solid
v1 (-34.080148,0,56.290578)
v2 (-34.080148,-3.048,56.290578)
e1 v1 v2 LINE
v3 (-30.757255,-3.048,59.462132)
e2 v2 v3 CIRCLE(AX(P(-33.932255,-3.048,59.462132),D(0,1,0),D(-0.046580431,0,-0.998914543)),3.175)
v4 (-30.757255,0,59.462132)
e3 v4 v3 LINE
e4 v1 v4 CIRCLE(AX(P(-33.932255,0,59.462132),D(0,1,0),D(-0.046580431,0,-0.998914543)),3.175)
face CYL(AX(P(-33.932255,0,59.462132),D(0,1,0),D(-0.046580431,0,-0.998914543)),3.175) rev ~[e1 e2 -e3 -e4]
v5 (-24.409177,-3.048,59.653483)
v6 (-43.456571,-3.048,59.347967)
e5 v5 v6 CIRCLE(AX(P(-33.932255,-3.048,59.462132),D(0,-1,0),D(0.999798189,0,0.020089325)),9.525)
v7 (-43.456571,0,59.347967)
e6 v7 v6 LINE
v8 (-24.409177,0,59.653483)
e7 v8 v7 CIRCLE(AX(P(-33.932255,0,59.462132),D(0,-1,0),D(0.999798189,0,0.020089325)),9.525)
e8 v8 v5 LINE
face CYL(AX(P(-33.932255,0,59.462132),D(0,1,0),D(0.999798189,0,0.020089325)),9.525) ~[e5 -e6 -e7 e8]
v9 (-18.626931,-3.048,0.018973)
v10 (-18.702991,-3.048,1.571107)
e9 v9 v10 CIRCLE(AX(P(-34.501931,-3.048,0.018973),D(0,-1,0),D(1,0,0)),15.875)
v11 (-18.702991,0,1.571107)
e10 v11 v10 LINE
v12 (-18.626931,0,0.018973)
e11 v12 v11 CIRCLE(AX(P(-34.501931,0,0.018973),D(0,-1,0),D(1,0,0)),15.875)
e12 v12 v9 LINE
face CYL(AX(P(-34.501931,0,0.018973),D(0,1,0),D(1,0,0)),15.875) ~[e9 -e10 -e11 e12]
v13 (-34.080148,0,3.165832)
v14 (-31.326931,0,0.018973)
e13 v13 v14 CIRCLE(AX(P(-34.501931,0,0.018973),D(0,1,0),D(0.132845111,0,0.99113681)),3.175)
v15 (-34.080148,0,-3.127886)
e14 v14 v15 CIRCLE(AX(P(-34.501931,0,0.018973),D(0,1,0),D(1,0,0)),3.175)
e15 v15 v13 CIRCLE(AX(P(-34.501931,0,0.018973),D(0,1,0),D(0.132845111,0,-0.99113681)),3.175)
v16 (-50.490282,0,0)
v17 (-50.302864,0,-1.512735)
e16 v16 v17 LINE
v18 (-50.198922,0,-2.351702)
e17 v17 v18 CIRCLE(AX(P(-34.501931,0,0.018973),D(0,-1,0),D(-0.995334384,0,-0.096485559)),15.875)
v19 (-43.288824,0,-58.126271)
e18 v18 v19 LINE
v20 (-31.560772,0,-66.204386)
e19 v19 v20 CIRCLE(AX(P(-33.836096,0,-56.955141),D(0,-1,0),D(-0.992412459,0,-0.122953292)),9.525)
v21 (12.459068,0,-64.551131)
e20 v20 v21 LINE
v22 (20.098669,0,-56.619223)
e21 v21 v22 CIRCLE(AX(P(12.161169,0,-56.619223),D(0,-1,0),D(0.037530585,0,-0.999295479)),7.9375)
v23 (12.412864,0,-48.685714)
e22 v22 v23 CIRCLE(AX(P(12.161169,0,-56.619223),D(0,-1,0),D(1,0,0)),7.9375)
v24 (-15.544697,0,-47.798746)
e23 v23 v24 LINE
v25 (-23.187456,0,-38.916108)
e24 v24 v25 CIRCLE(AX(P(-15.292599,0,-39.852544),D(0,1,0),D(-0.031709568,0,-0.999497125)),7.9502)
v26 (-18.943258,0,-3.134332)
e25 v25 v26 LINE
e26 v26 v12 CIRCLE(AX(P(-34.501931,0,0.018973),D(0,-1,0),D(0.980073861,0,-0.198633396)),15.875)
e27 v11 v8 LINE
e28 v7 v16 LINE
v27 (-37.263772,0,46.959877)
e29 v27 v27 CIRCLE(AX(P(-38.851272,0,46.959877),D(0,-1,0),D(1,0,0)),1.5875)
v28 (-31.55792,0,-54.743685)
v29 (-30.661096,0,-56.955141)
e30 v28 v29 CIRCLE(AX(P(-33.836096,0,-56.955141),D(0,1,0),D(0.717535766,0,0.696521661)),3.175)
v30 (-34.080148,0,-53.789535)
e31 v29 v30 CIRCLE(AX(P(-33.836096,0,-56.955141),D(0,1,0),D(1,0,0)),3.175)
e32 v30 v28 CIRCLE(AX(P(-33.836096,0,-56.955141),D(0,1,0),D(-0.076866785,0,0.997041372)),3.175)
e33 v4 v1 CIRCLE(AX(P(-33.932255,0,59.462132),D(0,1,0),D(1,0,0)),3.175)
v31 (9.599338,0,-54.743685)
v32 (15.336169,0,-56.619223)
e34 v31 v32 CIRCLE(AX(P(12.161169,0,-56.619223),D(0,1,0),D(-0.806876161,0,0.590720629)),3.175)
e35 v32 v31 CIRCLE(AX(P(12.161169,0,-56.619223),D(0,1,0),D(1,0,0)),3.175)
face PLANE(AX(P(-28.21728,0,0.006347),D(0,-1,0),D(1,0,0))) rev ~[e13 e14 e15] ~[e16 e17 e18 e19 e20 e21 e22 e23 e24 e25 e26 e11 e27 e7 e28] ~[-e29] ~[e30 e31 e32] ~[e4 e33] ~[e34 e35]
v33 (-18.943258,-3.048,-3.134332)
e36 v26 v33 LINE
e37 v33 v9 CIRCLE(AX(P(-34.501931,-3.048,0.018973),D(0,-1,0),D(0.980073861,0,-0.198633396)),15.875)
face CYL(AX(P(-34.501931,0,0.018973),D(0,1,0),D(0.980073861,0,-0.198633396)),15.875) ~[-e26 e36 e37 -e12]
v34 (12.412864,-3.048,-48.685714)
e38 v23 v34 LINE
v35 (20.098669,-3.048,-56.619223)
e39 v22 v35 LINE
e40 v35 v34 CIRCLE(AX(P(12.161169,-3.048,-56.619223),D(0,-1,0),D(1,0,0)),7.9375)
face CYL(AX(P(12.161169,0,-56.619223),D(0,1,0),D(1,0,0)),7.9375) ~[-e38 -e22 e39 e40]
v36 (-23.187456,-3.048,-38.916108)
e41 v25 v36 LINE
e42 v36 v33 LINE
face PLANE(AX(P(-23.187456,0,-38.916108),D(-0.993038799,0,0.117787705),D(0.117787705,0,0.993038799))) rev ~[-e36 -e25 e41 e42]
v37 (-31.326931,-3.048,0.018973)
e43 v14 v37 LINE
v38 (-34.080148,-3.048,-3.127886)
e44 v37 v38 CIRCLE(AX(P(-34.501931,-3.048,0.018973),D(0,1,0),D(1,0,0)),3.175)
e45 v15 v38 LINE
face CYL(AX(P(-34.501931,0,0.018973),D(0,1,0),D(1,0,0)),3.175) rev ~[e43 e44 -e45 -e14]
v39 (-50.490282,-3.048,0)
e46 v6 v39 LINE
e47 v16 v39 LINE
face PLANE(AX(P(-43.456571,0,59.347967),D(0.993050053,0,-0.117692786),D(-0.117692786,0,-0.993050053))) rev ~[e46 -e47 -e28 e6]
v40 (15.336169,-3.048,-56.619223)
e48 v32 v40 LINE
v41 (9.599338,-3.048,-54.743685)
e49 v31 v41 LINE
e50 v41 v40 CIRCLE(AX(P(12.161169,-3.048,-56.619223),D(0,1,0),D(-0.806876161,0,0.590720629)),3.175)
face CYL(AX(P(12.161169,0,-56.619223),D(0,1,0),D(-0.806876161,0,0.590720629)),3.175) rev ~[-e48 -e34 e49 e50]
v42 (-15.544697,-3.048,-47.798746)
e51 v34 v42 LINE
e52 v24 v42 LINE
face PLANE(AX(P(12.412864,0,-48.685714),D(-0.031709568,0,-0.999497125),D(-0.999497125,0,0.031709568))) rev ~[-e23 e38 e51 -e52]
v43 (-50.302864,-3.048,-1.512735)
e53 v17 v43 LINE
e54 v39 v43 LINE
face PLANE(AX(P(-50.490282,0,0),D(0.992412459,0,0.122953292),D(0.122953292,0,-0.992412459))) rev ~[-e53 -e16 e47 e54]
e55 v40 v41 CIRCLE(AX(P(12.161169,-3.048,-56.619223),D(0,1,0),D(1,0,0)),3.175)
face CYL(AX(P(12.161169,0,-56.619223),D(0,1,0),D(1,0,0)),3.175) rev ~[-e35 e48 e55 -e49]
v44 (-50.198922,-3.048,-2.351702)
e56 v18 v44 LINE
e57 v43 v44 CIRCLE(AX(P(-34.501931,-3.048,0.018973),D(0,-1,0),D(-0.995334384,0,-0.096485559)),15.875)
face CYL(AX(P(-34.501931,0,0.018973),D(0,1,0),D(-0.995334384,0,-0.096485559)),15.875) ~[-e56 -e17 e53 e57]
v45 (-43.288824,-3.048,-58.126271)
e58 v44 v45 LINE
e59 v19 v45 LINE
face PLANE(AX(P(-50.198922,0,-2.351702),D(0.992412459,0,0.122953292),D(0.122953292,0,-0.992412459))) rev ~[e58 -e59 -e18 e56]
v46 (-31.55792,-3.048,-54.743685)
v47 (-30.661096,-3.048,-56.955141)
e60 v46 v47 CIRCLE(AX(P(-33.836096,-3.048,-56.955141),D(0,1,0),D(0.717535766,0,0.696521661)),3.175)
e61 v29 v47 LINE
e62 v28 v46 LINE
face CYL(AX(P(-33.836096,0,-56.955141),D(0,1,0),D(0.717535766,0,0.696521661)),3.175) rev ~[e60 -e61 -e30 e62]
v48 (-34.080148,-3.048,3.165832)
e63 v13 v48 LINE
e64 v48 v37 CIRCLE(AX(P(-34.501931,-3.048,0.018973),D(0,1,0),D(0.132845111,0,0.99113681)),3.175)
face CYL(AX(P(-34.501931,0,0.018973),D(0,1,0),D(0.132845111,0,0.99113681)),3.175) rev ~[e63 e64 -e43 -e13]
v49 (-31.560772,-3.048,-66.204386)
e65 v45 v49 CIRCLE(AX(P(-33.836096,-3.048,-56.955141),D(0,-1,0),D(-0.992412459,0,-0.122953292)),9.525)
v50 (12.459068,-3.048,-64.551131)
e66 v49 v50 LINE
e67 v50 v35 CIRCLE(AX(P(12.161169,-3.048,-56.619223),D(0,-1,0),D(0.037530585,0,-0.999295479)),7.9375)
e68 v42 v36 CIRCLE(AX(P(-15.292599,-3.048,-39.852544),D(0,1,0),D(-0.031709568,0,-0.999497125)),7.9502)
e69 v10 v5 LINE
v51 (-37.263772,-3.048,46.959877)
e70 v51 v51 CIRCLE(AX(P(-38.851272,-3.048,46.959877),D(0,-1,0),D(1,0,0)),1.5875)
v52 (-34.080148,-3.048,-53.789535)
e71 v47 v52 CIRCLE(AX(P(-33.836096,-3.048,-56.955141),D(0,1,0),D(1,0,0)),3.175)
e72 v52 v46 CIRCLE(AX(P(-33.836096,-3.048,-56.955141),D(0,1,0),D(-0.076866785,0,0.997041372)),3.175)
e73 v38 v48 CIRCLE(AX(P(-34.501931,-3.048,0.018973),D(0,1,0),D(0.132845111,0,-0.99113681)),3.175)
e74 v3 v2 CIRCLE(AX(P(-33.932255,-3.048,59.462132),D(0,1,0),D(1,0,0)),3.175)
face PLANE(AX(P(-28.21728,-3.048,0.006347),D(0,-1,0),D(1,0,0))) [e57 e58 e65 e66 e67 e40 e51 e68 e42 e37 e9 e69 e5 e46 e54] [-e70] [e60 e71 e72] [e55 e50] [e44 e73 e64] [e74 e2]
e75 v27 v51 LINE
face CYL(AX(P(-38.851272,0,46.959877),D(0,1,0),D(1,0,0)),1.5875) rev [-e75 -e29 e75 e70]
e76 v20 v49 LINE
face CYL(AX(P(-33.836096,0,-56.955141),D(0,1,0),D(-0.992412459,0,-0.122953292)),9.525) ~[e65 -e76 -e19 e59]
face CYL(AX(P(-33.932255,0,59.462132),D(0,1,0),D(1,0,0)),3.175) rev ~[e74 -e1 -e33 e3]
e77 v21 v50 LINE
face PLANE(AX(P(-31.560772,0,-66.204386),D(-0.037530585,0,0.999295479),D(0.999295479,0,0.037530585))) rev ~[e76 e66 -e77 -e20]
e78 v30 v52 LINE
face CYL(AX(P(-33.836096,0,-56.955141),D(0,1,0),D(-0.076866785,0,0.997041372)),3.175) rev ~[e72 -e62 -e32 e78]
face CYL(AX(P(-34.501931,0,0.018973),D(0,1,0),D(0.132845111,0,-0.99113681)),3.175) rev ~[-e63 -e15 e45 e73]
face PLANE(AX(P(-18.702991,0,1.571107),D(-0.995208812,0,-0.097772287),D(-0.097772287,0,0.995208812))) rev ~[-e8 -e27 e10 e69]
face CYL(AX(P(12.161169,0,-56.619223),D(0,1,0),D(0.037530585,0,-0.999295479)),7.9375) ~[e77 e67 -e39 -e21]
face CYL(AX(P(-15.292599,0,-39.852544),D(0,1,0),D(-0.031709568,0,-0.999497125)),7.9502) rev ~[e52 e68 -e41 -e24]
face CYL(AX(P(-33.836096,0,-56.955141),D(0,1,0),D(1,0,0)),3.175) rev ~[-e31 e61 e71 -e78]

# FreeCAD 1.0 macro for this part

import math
import FreeCAD as App
import Part
import Sketcher
Q = App.Units.Quantity

doc = App.newDocument("Part")
body = doc.addObject("PartDesign::Body", "Body")

sketch1 = body.newObject("Sketcher::SketchObject", "Sketch")
sketch1.AttachmentSupport = (doc.getObject("XZ_Plane"), [""])
sketch1.MapMode = "FlatFace"
sketch1.addGeometry([
    Part.ArcOfCircle(Part.Circle(App.Vector(-33.836096, -56.955141, 0), App.Vector(0, 0, 1), 9.525), math.radians(-172.937424), math.radians(-76.179606)),
    Part.LineSegment(App.Vector(-31.560772, -66.204386, 0), App.Vector(12.459068, -64.551131, 0)),
    Part.ArcOfCircle(Part.Circle(App.Vector(12.161169, -56.619223, 0), App.Vector(0, 0, 1), 7.9375), math.radians(-87.849151), math.radians(0)),
    Part.ArcOfCircle(Part.Circle(App.Vector(12.161169, -56.619223, 0), App.Vector(0, 0, 1), 7.9375), math.radians(0), math.radians(88.182871)),
    Part.LineSegment(App.Vector(12.412864, -48.685714, 0), App.Vector(-15.544697, -47.798746, 0)),
    Part.ArcOfCircle(Part.Circle(App.Vector(-15.292599, -39.852544, 0), App.Vector(0, 0, 1), 7.9502), math.radians(173.235558), math.radians(268.182871)),
    Part.LineSegment(App.Vector(-23.187456, -38.916108, 0), App.Vector(-18.943258, -3.134332, 0)),
    Part.ArcOfCircle(Part.Circle(App.Vector(-34.501931, 0.018973, 0), App.Vector(0, 0, 1), 15.875), math.radians(-11.457055), math.radians(0)),
    Part.ArcOfCircle(Part.Circle(App.Vector(-34.501931, 0.018973, 0), App.Vector(0, 0, 1), 15.875), math.radians(0), math.radians(5.610898)),
    Part.LineSegment(App.Vector(-18.702991, 1.571107, 0), App.Vector(-24.409177, 59.653483, 0)),
    Part.ArcOfCircle(Part.Circle(App.Vector(-33.932255, 59.462132, 0), App.Vector(0, 0, 1), 9.525), math.radians(1.151111), math.radians(180.686756)),
    Part.LineSegment(App.Vector(-43.456571, 59.347967, 0), App.Vector(-50.490282, 0, 0)),
    Part.LineSegment(App.Vector(-50.490282, 0, 0), App.Vector(-50.302864, -1.512735, 0)),
    Part.ArcOfCircle(Part.Circle(App.Vector(-34.501931, 0.018973, 0), App.Vector(0, 0, 1), 15.875), math.radians(-174.463171), math.radians(-171.411676)),
    Part.LineSegment(App.Vector(-50.198922, -2.351702, 0), App.Vector(-43.288824, -58.126271, 0)),
    Part.ArcOfCircle(Part.Circle(App.Vector(-33.836096, -56.955141, 0), App.Vector(0, 0, 1), 3.175), math.radians(94.408491), math.radians(360)),
    Part.ArcOfCircle(Part.Circle(App.Vector(-33.836096, -56.955141, 0), App.Vector(0, 0, 1), 3.175), math.radians(44.148598), math.radians(94.408491)),
    Part.ArcOfCircle(Part.Circle(App.Vector(-33.836096, -56.955141, 0), App.Vector(0, 0, 1), 3.175), math.radians(0), math.radians(44.148598)),
    Part.ArcOfCircle(Part.Circle(App.Vector(-34.501931, 0.018973, 0), App.Vector(0, 0, 1), 3.175), math.radians(0), math.radians(82.365968)),
    Part.ArcOfCircle(Part.Circle(App.Vector(-34.501931, 0.018973, 0), App.Vector(0, 0, 1), 3.175), math.radians(-82.365968), math.radians(0)),
    Part.ArcOfCircle(Part.Circle(App.Vector(-34.501931, 0.018973, 0), App.Vector(0, 0, 1), 3.175), math.radians(82.365968), math.radians(277.634032)),
    Part.ArcOfCircle(Part.Circle(App.Vector(12.161169, -56.619223, 0), App.Vector(0, 0, 1), 3.175), math.radians(0), math.radians(143.791837)),
    Part.ArcOfCircle(Part.Circle(App.Vector(12.161169, -56.619223, 0), App.Vector(0, 0, 1), 3.175), math.radians(143.791837), math.radians(360)),
    Part.Circle(App.Vector(-38.851272, 46.959877, 0), App.Vector(0, 0, 1), 1.5875),
    Part.ArcOfCircle(Part.Circle(App.Vector(-33.932255, 59.462132, 0), App.Vector(0, 0, 1), 3.175), math.radians(0), math.radians(267.330172)),
    Part.ArcOfCircle(Part.Circle(App.Vector(-33.932255, 59.462132, 0), App.Vector(0, 0, 1), 3.175), math.radians(-92.669828), math.radians(0)),
], False)
sketch1.addConstraint([
    Sketcher.Constraint("Coincident", 0, 2, 1, 1),
    Sketcher.Constraint("Coincident", 1, 2, 2, 1),
    Sketcher.Constraint("Coincident", 2, 2, 3, 1),
    Sketcher.Constraint("Coincident", 3, 2, 4, 1),
    Sketcher.Constraint("Coincident", 4, 2, 5, 2),
    Sketcher.Constraint("Coincident", 5, 1, 6, 1),
    Sketcher.Constraint("Coincident", 6, 2, 7, 1),
    Sketcher.Constraint("Coincident", 7, 2, 8, 1),
    Sketcher.Constraint("Coincident", 8, 2, 9, 1),
    Sketcher.Constraint("Coincident", 9, 2, 10, 1),
    Sketcher.Constraint("Coincident", 10, 2, 11, 1),
    Sketcher.Constraint("Coincident", 11, 2, 12, 1),
    Sketcher.Constraint("Coincident", 12, 2, 13, 1),
    Sketcher.Constraint("Coincident", 13, 2, 14, 1),
    Sketcher.Constraint("Coincident", 14, 2, 0, 1),
    Sketcher.Constraint("Coincident", 15, 1, 16, 2),
    Sketcher.Constraint("Coincident", 16, 1, 17, 2),
    Sketcher.Constraint("Coincident", 17, 1, 15, 2),
    Sketcher.Constraint("Coincident", 18, 1, 19, 2),
    Sketcher.Constraint("Coincident", 19, 1, 20, 2),
    Sketcher.Constraint("Coincident", 20, 1, 18, 2),
    Sketcher.Constraint("Coincident", 21, 1, 22, 2),
    Sketcher.Constraint("Coincident", 22, 1, 21, 2),
    Sketcher.Constraint("Coincident", 24, 1, 25, 2),
    Sketcher.Constraint("Coincident", 25, 1, 24, 2),
    Sketcher.Constraint("Coincident", 3, 3, 2, 3),
    Sketcher.Constraint("Coincident", 8, 3, 7, 3),
    Sketcher.Constraint("Coincident", 13, 3, 7, 3),
    Sketcher.Constraint("Coincident", 15, 3, 0, 3),
    Sketcher.Constraint("Coincident", 16, 3, 0, 3),
    Sketcher.Constraint("Coincident", 18, 3, 7, 3),
    Sketcher.Constraint("Coincident", 19, 3, 7, 3),
    Sketcher.Constraint("Coincident", 21, 3, 2, 3),
    Sketcher.Constraint("Coincident", 24, 3, 10, 3),
    Sketcher.Constraint("PointOnObject", 11, 2, -1),
    Sketcher.Constraint("Diameter", 23, Q("0.125 in")),
    Sketcher.Constraint("Radius", 0, Q("0.375 in")),
    Sketcher.Constraint("Radius", 2, Q("0.3125 in")),
    Sketcher.Constraint("Radius", 5, Q("0.313 in")),
    Sketcher.Constraint("Radius", 7, Q("0.625 in")),
    Sketcher.Constraint("Radius", 10, Q("0.375 in")),
    Sketcher.Constraint("Radius", 13, Q("0.625 in")),
    Sketcher.Constraint("Radius", 15, Q("0.125 in")),
    Sketcher.Constraint("Radius", 17, Q("0.125 in")),
    Sketcher.Constraint("Radius", 18, Q("0.125 in")),
    Sketcher.Constraint("Radius", 20, Q("0.125 in")),
    Sketcher.Constraint("Radius", 21, Q("0.125 in")),
    Sketcher.Constraint("Radius", 22, Q("0.125 in")),
    Sketcher.Constraint("Radius", 24, Q("0.125 in")),
    Sketcher.Constraint("Radius", 25, Q("0.125 in")),
    Sketcher.Constraint("Distance", 9, Q("58.362 mm")),
    Sketcher.Constraint("Distance", 12, Q("1.524301 mm")),
    Sketcher.Constraint("DistanceX", 5, 3, -1, 1, Q("15.292599 mm")),
    Sketcher.Constraint("DistanceY", 13, 2, -1, 1, Q("2.351702 mm")),
    Sketcher.Constraint("DistanceX", 7, 3, 2, 3, Q("46.6631 mm")),
    Sketcher.Constraint("DistanceX", 2, 3, 1, 2, Q("0.297899 mm")),
    Sketcher.Constraint("DistanceX", 17, 3, 4, 2, Q("18.291399 mm")),
    Sketcher.Constraint("DistanceX", 10, 2, 23, 3, Q("4.605298 mm")),
    Sketcher.Constraint("Distance", 11, Q("59.763319 mm")),
    Sketcher.Constraint("DistanceY", 0, 3, -1, 1, Q("56.955141 mm")),
    Sketcher.Constraint("DistanceX", -1, 1, 2, 3, Q("12.161169 mm")),
    Sketcher.Constraint("DistanceY", 1, 2, -1, 1, Q("64.551131 mm")),
    Sketcher.Constraint("DistanceY", 5, 1, -1, 1, Q("38.916108 mm")),
    Sketcher.Constraint("DistanceX", 6, 2, -1, 1, Q("18.943258 mm")),
    Sketcher.Constraint("DistanceX", 8, 2, -1, 1, Q("18.702991 mm")),
    Sketcher.Constraint("DistanceX", 10, 2, -1, 1, Q("43.456571 mm")),
    Sketcher.Constraint("DistanceX", 13, 2, -1, 1, Q("50.198922 mm")),
    Sketcher.Constraint("DistanceY", 14, 2, -1, 1, Q("58.126271 mm")),
    Sketcher.Constraint("DistanceX", 16, 1, -1, 1, Q("31.55792 mm")),
    Sketcher.Constraint("DistanceY", 17, 1, -1, 1, Q("56.955141 mm")),
    Sketcher.Constraint("DistanceY", -1, 1, 25, 1, Q("56.290578 mm")),
    Sketcher.Constraint("DistanceY", 2, 3, 5, 3, Q("16.766679 mm")),
    Sketcher.Constraint("DistanceY", 7, 3, 10, 3, Q("59.443159 mm")),
    Sketcher.Constraint("DistanceX", 10, 3, 0, 3, Q("0.096159 mm")),
    Sketcher.Constraint("DistanceY", 0, 2, 5, 3, Q("26.351842 mm")),
    Sketcher.Constraint("DistanceY", 2, 3, 3, 2, Q("7.933508 mm")),
    Sketcher.Constraint("DistanceY", 2, 2, 3, 2, Q("7.933508 mm")),
    Sketcher.Constraint("DistanceY", 23, 3, 10, 2, Q("12.38809 mm")),
    Sketcher.Constraint("DistanceX", 11, 2, 8, 3, Q("15.988351 mm")),
    Sketcher.Constraint("DistanceX", 15, 1, 16, 1, Q("2.522228 mm")),
    Sketcher.Constraint("DistanceY", 19, 1, 18, 3, Q("3.146859 mm")),
    Sketcher.Constraint("DistanceY", 7, 3, 20, 1, Q("3.146859 mm")),
    Sketcher.Constraint("DistanceX", 22, 1, 2, 3, Q("2.561832 mm")),
    Sketcher.Constraint("DistanceY", 24, 1, 9, 2, Q("0.191351 mm")),
    Sketcher.Constraint("DistanceY", -1, 1, 7, 2, Q("0.018973 mm")),
    Sketcher.Constraint("DistanceY", -1, 1, 18, 1, Q("0.018973 mm")),
    Sketcher.Constraint("DistanceY", 21, 1, -1, 1, Q("56.619223 mm")),
])
pad1 = body.newObject("PartDesign::Pad", "Pad")
pad1.Profile = sketch1
pad1.Length = Q("0.12 in")

doc.recompute()
